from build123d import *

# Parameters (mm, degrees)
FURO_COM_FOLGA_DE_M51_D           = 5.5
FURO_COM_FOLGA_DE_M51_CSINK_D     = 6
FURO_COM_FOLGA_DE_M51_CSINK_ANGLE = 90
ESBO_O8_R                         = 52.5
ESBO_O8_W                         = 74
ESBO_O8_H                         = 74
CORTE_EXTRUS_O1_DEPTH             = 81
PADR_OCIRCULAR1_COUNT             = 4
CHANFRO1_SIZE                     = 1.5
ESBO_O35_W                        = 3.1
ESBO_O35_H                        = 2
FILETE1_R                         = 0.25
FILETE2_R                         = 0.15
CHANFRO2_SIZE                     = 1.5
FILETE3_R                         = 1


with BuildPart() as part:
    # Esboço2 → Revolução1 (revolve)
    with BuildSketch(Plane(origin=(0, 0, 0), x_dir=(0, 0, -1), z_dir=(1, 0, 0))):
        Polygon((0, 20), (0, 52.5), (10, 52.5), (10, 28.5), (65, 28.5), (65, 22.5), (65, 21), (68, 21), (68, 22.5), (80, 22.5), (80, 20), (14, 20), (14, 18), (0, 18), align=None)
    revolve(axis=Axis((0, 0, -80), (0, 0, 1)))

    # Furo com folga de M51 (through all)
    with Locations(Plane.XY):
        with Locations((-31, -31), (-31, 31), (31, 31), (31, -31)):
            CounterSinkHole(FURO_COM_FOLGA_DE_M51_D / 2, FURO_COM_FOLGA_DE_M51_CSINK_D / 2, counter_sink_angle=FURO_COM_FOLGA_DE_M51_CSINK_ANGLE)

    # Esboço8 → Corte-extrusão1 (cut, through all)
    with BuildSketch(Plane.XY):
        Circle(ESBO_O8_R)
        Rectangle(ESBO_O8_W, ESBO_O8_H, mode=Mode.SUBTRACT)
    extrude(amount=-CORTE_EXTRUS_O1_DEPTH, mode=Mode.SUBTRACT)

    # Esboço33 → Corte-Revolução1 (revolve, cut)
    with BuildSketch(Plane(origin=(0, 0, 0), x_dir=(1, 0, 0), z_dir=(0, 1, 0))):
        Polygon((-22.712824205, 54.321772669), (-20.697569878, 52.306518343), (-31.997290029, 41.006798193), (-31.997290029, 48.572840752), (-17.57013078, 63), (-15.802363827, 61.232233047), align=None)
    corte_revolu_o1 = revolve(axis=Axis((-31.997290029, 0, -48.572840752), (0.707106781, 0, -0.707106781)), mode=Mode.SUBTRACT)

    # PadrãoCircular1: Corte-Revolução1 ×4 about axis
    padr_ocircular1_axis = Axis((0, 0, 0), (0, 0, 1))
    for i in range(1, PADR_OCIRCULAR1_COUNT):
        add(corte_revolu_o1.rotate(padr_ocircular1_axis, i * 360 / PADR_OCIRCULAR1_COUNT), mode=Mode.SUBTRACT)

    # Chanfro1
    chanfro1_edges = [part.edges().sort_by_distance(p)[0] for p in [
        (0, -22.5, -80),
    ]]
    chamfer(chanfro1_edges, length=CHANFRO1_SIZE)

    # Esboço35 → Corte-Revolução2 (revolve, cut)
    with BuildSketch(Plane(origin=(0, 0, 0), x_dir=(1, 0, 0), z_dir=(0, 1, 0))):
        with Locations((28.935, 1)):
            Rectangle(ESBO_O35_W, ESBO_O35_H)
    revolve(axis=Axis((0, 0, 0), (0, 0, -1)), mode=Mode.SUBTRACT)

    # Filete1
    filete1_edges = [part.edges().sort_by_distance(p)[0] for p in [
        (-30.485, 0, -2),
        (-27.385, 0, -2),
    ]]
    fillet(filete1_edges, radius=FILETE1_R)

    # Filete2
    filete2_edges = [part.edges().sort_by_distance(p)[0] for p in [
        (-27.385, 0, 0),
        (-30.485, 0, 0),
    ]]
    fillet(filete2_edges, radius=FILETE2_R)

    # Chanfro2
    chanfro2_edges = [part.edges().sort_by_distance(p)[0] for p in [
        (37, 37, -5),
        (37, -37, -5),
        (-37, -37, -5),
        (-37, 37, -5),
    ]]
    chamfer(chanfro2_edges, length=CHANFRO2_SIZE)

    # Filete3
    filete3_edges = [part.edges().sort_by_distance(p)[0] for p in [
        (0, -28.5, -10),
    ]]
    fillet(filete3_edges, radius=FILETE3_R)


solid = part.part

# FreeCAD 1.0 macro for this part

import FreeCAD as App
import Part
import Sketcher
Q = App.Units.Quantity


def edges_at(feature, points):
    """Names of the edges that pass closest to the given points."""
    edges = feature.Shape.Edges
    near = lambda p: min(range(len(edges)), key=lambda i: edges[i].distToShape(Part.Vertex(*p))[0])
    return sorted({f"Edge{near(p) + 1}" for p in points})

doc = App.newDocument("Part")
body = doc.addObject("PartDesign::Body", "Body")

sketch1 = body.newObject("Sketcher::SketchObject", "Sketch")
sketch1.AttachmentSupport = (doc.getObject("YZ_Plane"), [""])
sketch1.MapMode = "FlatFace"
sketch1.addGeometry([
    Part.LineSegment(App.Vector(52.5, 0, 0), App.Vector(18, 0, 0)),
    Part.LineSegment(App.Vector(18, 0, 0), App.Vector(18, -14, 0)),
    Part.LineSegment(App.Vector(18, -14, 0), App.Vector(20, -14, 0)),
    Part.LineSegment(App.Vector(20, -14, 0), App.Vector(20, -80, 0)),
    Part.LineSegment(App.Vector(20, -80, 0), App.Vector(22.5, -80, 0)),
    Part.LineSegment(App.Vector(22.5, -80, 0), App.Vector(22.5, -68, 0)),
    Part.LineSegment(App.Vector(22.5, -68, 0), App.Vector(21, -68, 0)),
    Part.LineSegment(App.Vector(21, -68, 0), App.Vector(21, -65, 0)),
    Part.LineSegment(App.Vector(21, -65, 0), App.Vector(28.5, -65, 0)),
    Part.LineSegment(App.Vector(28.5, -65, 0), App.Vector(28.5, -10, 0)),
    Part.LineSegment(App.Vector(28.5, -10, 0), App.Vector(52.5, -10, 0)),
    Part.LineSegment(App.Vector(52.5, -10, 0), App.Vector(52.5, 0, 0)),
], False)
sketch1.addConstraint([
    Sketcher.Constraint("Coincident", 0, 2, 1, 1),
    Sketcher.Constraint("Coincident", 1, 2, 2, 1),
    Sketcher.Constraint("Coincident", 2, 2, 3, 1),
    Sketcher.Constraint("Coincident", 3, 2, 4, 1),
    Sketcher.Constraint("Coincident", 4, 2, 5, 1),
    Sketcher.Constraint("Coincident", 5, 2, 6, 1),
    Sketcher.Constraint("Coincident", 6, 2, 7, 1),
    Sketcher.Constraint("Coincident", 7, 2, 8, 1),
    Sketcher.Constraint("Coincident", 8, 2, 9, 1),
    Sketcher.Constraint("Coincident", 9, 2, 10, 1),
    Sketcher.Constraint("Coincident", 10, 2, 11, 1),
    Sketcher.Constraint("Coincident", 11, 2, 0, 1),
    Sketcher.Constraint("Horizontal", 0),
    Sketcher.Constraint("Vertical", 1),
    Sketcher.Constraint("Horizontal", 2),
    Sketcher.Constraint("Vertical", 3),
    Sketcher.Constraint("Horizontal", 4),
    Sketcher.Constraint("Vertical", 5),
    Sketcher.Constraint("Horizontal", 6),
    Sketcher.Constraint("Vertical", 7),
    Sketcher.Constraint("Horizontal", 8),
    Sketcher.Constraint("Vertical", 9),
    Sketcher.Constraint("Horizontal", 10),
    Sketcher.Constraint("Vertical", 11),
    Sketcher.Constraint("PointOnObject", 0, 2, -1),
    Sketcher.Constraint("DistanceX", 2, 1, 2, 2, 2.0),
    Sketcher.Constraint("DistanceX", 10, 1, 10, 2, 24.0),
    Sketcher.Constraint("DistanceY", 1, 2, 1, 1, 14.0),
    Sketcher.Constraint("DistanceY", 3, 2, 3, 1, 66.0),
    Sketcher.Constraint("DistanceY", 5, 1, 5, 2, 12.0),
    Sketcher.Constraint("DistanceY", 7, 1, 7, 2, 3.0),
    Sketcher.Constraint("DistanceY", 9, 1, 9, 2, 55.0),
    Sketcher.Constraint("DistanceX", 0, 2, 0, 1, 34.5),
    Sketcher.Constraint("DistanceX", 4, 1, 4, 2, 2.5),
    Sketcher.Constraint("DistanceX", 6, 2, 6, 1, 1.5),
    Sketcher.Constraint("DistanceX", -1, 1, 0, 2, 18.0),
])
revolution = body.newObject("PartDesign::Revolution", "Revolution")
revolution.Profile = sketch1
revolution.ReferenceAxis = (sketch1, ["V_Axis"])
revolution.Angle = 360

sketch2 = body.newObject("Sketcher::SketchObject", "Sketch001")
sketch2.AttachmentSupport = (doc.getObject("XY_Plane"), [""])
sketch2.MapMode = "FlatFace"
sketch2.addGeometry([
    Part.Circle(App.Vector(-31, -31, 0), App.Vector(0, 0, 1), 2.8),
    Part.Circle(App.Vector(-31, 31, 0), App.Vector(0, 0, 1), 2.8),
    Part.Circle(App.Vector(31, 31, 0), App.Vector(0, 0, 1), 2.8),
    Part.Circle(App.Vector(31, -31, 0), App.Vector(0, 0, 1), 2.8),
], False)
sketch2.addConstraint([
    Sketcher.Constraint("Equal", 0, 1),
    Sketcher.Constraint("Equal", 1, 2),
    Sketcher.Constraint("Equal", 2, 3),
    Sketcher.Constraint("Symmetric", 0, 3, 2, 3, -1, 1),
    Sketcher.Constraint("Symmetric", 1, 3, 3, 3, -1, 1),
    Sketcher.Constraint("Symmetric", 1, 3, 2, 3, -2),
    Sketcher.Constraint("Diameter", 0, 5.5),
    Sketcher.Constraint("DistanceX", 0, 3, -1, 1, 31.0),
    Sketcher.Constraint("DistanceY", 0, 3, -1, 1, 31.0),
])
doc.recompute()
hole = body.newObject("PartDesign::Hole", "Hole")
hole.Profile = sketch2
hole.ThreadType = "None"
hole.Diameter = 5.5
hole.DepthType = "ThroughAll"
hole.HoleCutType = "Countersink"
hole.HoleCutDiameter = 6
hole.HoleCutCountersinkAngle = 90

sketch3 = body.newObject("Sketcher::SketchObject", "Sketch002")
sketch3.AttachmentSupport = (doc.getObject("XY_Plane"), [""])
sketch3.MapMode = "FlatFace"
sketch3.addGeometry([
    Part.Circle(App.Vector(0, 0, 0), App.Vector(0, 0, 1), 52),
    Part.LineSegment(App.Vector(37, -37, 0), App.Vector(-37, -37, 0)),
    Part.LineSegment(App.Vector(-37, -37, 0), App.Vector(-37, 37, 0)),
    Part.LineSegment(App.Vector(-37, 37, 0), App.Vector(37, 37, 0)),
    Part.LineSegment(App.Vector(37, 37, 0), App.Vector(37, -37, 0)),
], False)
sketch3.addConstraint([
    Sketcher.Constraint("Coincident", 1, 2, 2, 1),
    Sketcher.Constraint("Coincident", 2, 2, 3, 1),
    Sketcher.Constraint("Coincident", 3, 2, 4, 1),
    Sketcher.Constraint("Coincident", 4, 2, 1, 1),
    Sketcher.Constraint("Horizontal", 1),
    Sketcher.Constraint("Vertical", 2),
    Sketcher.Constraint("Horizontal", 3),
    Sketcher.Constraint("Vertical", 4),
    Sketcher.Constraint("Coincident", 0, 3, -1, 1),
    Sketcher.Constraint("Symmetric", 1, 2, 3, 2, -1, 1),
    Sketcher.Constraint("Equal", 3, 2),
    Sketcher.Constraint("Diameter", 0, 105.0),
    Sketcher.Constraint("DistanceX", 1, 2, 1, 1, 74.0),
])
pocket1 = body.newObject("PartDesign::Pocket", "Pocket")
pocket1.Profile = sketch3
pocket1.Type = "ThroughAll"

sketch4 = body.newObject("Sketcher::SketchObject", "Sketch003")
sketch4.AttachmentSupport = (doc.getObject("XZ_Plane"), [""])
sketch4.MapMode = "FlatFace"
sketch4.addGeometry([
    Part.LineSegment(App.Vector(-20.7, -52.3, 0), App.Vector(-22.7, -54.3, 0)),
    Part.LineSegment(App.Vector(-22.7, -54.3, 0), App.Vector(-15.8, -61.2, 0)),
    Part.LineSegment(App.Vector(-15.8, -61.2, 0), App.Vector(-17.6, -63, 0)),
    Part.LineSegment(App.Vector(-17.6, -63, 0), App.Vector(-32, -48.6, 0)),
    Part.LineSegment(App.Vector(-32, -48.6, 0), App.Vector(-32, -41, 0)),
    Part.LineSegment(App.Vector(-32, -41, 0), App.Vector(-20.7, -52.3, 0)),
], False)
sketch4.addGeometry(Part.LineSegment(App.Vector(-35.8, -44.8, 0), App.Vector(-17.6, -63, 0)), True)
sketch4.addConstraint([
    Sketcher.Constraint("Coincident", 0, 2, 1, 1),
    Sketcher.Constraint("Coincident", 1, 2, 2, 1),
    Sketcher.Constraint("Coincident", 2, 2, 3, 1),
    Sketcher.Constraint("Coincident", 3, 2, 4, 1),
    Sketcher.Constraint("Coincident", 4, 2, 5, 1),
    Sketcher.Constraint("Coincident", 5, 2, 0, 1),
    Sketcher.Constraint("Vertical", 4),
    Sketcher.Constraint("Coincident", 6, 2, 2, 2),
    Sketcher.Constraint("Perpendicular", 0, 1),
    Sketcher.Constraint("Perpendicular", 1, 2),
    Sketcher.Constraint("Perpendicular", 2, 3),
    Sketcher.Constraint("Parallel", 3, 5),
    Sketcher.Constraint("Parallel", 5, 6),
    Sketcher.Constraint("Angle", 0, Q("-135 deg")),
    Sketcher.Constraint("DistanceY", 2, 2, -1, 1, 63.0),
    Sketcher.Constraint("Distance", 2, 2.5),
    Sketcher.Constraint("Distance", 0, 2.85),
    Sketcher.Constraint("DistanceY", 4, 2, -1, 1, 41.006798),
    Sketcher.Constraint("DistanceY", 5, 2, 6, 1, 7.516699),
    Sketcher.Constraint("DistanceX", 2, 2, -1, 1, 17.570131),
    Sketcher.Constraint("DistanceX", 5, 2, -1, 1, 20.69757),
])
groove = body.newObject("PartDesign::Groove", "Groove")
groove.Profile = sketch4
groove.ReferenceAxis = (sketch4, ["Axis0"])
groove.Angle = 360
doc.recompute()

polarpattern = body.newObject("PartDesign::PolarPattern", "PolarPattern")
polarpattern.Originals = [groove]
polarpattern.Axis = (doc.getObject("Z_Axis"), [""])
polarpattern.Angle = 360
polarpattern.Occurrences = 4
body.Tip = polarpattern
doc.recompute()

chamfer = body.newObject("PartDesign::Chamfer", "Chamfer")
chamfer.Base = (polarpattern, edges_at(polarpattern, [(0, -22.5, -80)]))
chamfer.Size = 1.5

sketch5 = body.newObject("Sketcher::SketchObject", "Sketch004")
sketch5.AttachmentSupport = (doc.getObject("XZ_Plane"), [""])
sketch5.MapMode = "FlatFace"
sketch5.addGeometry([
    Part.LineSegment(App.Vector(27.4, -2, 0), App.Vector(27.4, 0, 0)),
    Part.LineSegment(App.Vector(27.4, 0, 0), App.Vector(30.5, 0, 0)),
    Part.LineSegment(App.Vector(30.5, 0, 0), App.Vector(30.5, -2, 0)),
    Part.LineSegment(App.Vector(30.5, -2, 0), App.Vector(27.4, -2, 0)),
], False)
sketch5.addConstraint([
    Sketcher.Constraint("Coincident", 0, 2, 1, 1),
    Sketcher.Constraint("Coincident", 1, 2, 2, 1),
    Sketcher.Constraint("Coincident", 2, 2, 3, 1),
    Sketcher.Constraint("Coincident", 3, 2, 0, 1),
    Sketcher.Constraint("Vertical", 0),
    Sketcher.Constraint("Horizontal", 1),
    Sketcher.Constraint("Vertical", 2),
    Sketcher.Constraint("Horizontal", 3),
    Sketcher.Constraint("PointOnObject", 0, 2, -1),
    Sketcher.Constraint("DistanceY", 0, 1, 0, 2, 2.0),
    Sketcher.Constraint("DistanceX", 1, 1, 1, 2, 3.1),
    Sketcher.Constraint("DistanceX", -1, 1, 0, 2, 27.385),
])
groove2 = body.newObject("PartDesign::Groove", "Groove001")
groove2.Profile = sketch5
groove2.ReferenceAxis = (sketch5, ["V_Axis"])
groove2.Angle = 360
doc.recompute()

fillet = body.newObject("PartDesign::Fillet", "Fillet")
fillet.Base = (groove2, edges_at(groove2, [(-30.485, 0, -2), (-27.385, 0, -2)]))
fillet.Radius = 0.25
doc.recompute()

fillet2 = body.newObject("PartDesign::Fillet", "Fillet001")
fillet2.Base = (fillet, edges_at(fillet, [(-27.385, 0, 0), (-30.485, 0, 0)]))
fillet2.Radius = 0.15
doc.recompute()

chamfer2 = body.newObject("PartDesign::Chamfer", "Chamfer001")
chamfer2.Base = (fillet2, edges_at(fillet2, [
    (37, 37, -5),
    (37, -37, -5),
    (-37, -37, -5),
    (-37, 37, -5),
]))
chamfer2.Size = 1.5
doc.recompute()

fillet3 = body.newObject("PartDesign::Fillet", "Fillet002")
fillet3.Base = (chamfer2, edges_at(chamfer2, [(0, -28.5, -10)]))
fillet3.Radius = 1

doc.recompute()
